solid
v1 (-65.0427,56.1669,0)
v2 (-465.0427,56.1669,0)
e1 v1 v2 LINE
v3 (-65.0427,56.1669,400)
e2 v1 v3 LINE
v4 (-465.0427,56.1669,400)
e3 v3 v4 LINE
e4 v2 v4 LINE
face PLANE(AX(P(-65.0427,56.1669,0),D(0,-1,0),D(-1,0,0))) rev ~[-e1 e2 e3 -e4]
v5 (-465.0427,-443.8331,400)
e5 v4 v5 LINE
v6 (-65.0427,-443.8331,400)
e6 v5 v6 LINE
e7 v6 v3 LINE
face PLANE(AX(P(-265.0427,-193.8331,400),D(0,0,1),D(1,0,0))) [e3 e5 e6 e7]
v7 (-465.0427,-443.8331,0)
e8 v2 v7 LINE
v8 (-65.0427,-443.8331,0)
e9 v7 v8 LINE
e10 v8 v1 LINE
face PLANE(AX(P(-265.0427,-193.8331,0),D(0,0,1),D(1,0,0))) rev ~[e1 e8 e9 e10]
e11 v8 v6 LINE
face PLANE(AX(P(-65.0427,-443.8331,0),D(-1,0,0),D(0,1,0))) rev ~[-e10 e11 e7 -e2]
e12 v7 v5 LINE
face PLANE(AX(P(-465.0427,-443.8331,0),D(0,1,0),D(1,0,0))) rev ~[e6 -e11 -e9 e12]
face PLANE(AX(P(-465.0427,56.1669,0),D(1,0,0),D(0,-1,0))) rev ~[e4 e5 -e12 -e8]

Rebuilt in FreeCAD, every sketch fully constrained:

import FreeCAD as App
import Part
import Sketcher
from FreeCAD import Vector
Q = App.Units.Quantity

doc = App.newDocument("Part")
body = doc.addObject("PartDesign::Body", "Body")

# Sketch on XY plane
sketch1 = body.newObject("Sketcher::SketchObject", "Sketch")
sketch1.AttachmentSupport = (doc.getObject("XY_Plane"), [""])
sketch1.MapMode = "FlatFace"
sketch1.addGeometry(Part.LineSegment(Vector(-465, 56, 0), Vector(-465, -444, 0)), False)
sketch1.addGeometry(Part.LineSegment(Vector(-465, -444, 0), Vector(-65, -444, 0)), False)
sketch1.addGeometry(Part.LineSegment(Vector(-65, -444, 0), Vector(-65, 56, 0)), False)
sketch1.addGeometry(Part.LineSegment(Vector(-65, 56, 0), Vector(-465, 56, 0)), False)
sketch1.addConstraint(Sketcher.Constraint("Coincident", 0, 2, 1, 1))
sketch1.addConstraint(Sketcher.Constraint("Coincident", 1, 2, 2, 1))
sketch1.addConstraint(Sketcher.Constraint("Coincident", 2, 2, 3, 1))
sketch1.addConstraint(Sketcher.Constraint("Coincident", 3, 2, 0, 1))
sketch1.addConstraint(Sketcher.Constraint("Vertical", 0))
sketch1.addConstraint(Sketcher.Constraint("Horizontal", 1))
sketch1.addConstraint(Sketcher.Constraint("Vertical", 2))
sketch1.addConstraint(Sketcher.Constraint("Horizontal", 3))
sketch1.addConstraint(Sketcher.Constraint("DistanceX", 1, 1, 1, 2, Q("400 mm")))
sketch1.addConstraint(Sketcher.Constraint("DistanceY", 0, 2, 0, 1, Q("500 mm")))
sketch1.addConstraint(Sketcher.Constraint("DistanceX", 1, 2, -1, 1, Q("65.0427 mm")))
sketch1.addConstraint(Sketcher.Constraint("DistanceY", 0, 2, -1, 1, Q("443.833 mm")))
pad1 = body.newObject("PartDesign::Pad", "Pad")
pad1.Profile = sketch1
pad1.Length = 400

doc.recompute()
